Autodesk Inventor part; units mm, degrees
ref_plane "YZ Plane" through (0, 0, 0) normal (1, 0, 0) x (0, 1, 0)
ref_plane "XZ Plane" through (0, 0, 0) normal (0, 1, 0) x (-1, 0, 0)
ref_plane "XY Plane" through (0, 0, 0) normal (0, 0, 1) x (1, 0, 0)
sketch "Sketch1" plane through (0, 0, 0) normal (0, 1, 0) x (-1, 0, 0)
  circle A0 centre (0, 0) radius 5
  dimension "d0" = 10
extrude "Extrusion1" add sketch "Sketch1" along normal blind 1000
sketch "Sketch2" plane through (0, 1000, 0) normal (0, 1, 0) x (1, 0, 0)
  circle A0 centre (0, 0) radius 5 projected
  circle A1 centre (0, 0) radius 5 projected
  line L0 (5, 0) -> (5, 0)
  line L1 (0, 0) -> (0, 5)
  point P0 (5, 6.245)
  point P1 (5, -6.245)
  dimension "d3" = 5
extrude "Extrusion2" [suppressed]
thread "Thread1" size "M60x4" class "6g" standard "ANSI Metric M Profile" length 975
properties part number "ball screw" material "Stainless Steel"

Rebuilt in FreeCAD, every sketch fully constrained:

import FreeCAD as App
import Part
import Sketcher
Q = App.Units.Quantity

doc = App.newDocument("Part")
body = doc.addObject("PartDesign::Body", "Body")

sketch1 = body.newObject("Sketcher::SketchObject", "Sketch")
sketch1.AttachmentSupport = (doc.getObject("XZ_Plane"), [""])
sketch1.MapMode = "FlatFace"
sketch1.addGeometry(Part.Circle(App.Vector(0, 0, 0), App.Vector(0, 0, 1), 5), False)
sketch1.addConstraint([
    Sketcher.Constraint("Coincident", 0, 3, -1, 1),
    Sketcher.Constraint("Diameter", 0, Q("10 mm")),
])
pad1 = body.newObject("PartDesign::Pad", "Pad")
pad1.Profile = sketch1
pad1.Length = 1000
pad1.Reversed = True

doc.recompute()
